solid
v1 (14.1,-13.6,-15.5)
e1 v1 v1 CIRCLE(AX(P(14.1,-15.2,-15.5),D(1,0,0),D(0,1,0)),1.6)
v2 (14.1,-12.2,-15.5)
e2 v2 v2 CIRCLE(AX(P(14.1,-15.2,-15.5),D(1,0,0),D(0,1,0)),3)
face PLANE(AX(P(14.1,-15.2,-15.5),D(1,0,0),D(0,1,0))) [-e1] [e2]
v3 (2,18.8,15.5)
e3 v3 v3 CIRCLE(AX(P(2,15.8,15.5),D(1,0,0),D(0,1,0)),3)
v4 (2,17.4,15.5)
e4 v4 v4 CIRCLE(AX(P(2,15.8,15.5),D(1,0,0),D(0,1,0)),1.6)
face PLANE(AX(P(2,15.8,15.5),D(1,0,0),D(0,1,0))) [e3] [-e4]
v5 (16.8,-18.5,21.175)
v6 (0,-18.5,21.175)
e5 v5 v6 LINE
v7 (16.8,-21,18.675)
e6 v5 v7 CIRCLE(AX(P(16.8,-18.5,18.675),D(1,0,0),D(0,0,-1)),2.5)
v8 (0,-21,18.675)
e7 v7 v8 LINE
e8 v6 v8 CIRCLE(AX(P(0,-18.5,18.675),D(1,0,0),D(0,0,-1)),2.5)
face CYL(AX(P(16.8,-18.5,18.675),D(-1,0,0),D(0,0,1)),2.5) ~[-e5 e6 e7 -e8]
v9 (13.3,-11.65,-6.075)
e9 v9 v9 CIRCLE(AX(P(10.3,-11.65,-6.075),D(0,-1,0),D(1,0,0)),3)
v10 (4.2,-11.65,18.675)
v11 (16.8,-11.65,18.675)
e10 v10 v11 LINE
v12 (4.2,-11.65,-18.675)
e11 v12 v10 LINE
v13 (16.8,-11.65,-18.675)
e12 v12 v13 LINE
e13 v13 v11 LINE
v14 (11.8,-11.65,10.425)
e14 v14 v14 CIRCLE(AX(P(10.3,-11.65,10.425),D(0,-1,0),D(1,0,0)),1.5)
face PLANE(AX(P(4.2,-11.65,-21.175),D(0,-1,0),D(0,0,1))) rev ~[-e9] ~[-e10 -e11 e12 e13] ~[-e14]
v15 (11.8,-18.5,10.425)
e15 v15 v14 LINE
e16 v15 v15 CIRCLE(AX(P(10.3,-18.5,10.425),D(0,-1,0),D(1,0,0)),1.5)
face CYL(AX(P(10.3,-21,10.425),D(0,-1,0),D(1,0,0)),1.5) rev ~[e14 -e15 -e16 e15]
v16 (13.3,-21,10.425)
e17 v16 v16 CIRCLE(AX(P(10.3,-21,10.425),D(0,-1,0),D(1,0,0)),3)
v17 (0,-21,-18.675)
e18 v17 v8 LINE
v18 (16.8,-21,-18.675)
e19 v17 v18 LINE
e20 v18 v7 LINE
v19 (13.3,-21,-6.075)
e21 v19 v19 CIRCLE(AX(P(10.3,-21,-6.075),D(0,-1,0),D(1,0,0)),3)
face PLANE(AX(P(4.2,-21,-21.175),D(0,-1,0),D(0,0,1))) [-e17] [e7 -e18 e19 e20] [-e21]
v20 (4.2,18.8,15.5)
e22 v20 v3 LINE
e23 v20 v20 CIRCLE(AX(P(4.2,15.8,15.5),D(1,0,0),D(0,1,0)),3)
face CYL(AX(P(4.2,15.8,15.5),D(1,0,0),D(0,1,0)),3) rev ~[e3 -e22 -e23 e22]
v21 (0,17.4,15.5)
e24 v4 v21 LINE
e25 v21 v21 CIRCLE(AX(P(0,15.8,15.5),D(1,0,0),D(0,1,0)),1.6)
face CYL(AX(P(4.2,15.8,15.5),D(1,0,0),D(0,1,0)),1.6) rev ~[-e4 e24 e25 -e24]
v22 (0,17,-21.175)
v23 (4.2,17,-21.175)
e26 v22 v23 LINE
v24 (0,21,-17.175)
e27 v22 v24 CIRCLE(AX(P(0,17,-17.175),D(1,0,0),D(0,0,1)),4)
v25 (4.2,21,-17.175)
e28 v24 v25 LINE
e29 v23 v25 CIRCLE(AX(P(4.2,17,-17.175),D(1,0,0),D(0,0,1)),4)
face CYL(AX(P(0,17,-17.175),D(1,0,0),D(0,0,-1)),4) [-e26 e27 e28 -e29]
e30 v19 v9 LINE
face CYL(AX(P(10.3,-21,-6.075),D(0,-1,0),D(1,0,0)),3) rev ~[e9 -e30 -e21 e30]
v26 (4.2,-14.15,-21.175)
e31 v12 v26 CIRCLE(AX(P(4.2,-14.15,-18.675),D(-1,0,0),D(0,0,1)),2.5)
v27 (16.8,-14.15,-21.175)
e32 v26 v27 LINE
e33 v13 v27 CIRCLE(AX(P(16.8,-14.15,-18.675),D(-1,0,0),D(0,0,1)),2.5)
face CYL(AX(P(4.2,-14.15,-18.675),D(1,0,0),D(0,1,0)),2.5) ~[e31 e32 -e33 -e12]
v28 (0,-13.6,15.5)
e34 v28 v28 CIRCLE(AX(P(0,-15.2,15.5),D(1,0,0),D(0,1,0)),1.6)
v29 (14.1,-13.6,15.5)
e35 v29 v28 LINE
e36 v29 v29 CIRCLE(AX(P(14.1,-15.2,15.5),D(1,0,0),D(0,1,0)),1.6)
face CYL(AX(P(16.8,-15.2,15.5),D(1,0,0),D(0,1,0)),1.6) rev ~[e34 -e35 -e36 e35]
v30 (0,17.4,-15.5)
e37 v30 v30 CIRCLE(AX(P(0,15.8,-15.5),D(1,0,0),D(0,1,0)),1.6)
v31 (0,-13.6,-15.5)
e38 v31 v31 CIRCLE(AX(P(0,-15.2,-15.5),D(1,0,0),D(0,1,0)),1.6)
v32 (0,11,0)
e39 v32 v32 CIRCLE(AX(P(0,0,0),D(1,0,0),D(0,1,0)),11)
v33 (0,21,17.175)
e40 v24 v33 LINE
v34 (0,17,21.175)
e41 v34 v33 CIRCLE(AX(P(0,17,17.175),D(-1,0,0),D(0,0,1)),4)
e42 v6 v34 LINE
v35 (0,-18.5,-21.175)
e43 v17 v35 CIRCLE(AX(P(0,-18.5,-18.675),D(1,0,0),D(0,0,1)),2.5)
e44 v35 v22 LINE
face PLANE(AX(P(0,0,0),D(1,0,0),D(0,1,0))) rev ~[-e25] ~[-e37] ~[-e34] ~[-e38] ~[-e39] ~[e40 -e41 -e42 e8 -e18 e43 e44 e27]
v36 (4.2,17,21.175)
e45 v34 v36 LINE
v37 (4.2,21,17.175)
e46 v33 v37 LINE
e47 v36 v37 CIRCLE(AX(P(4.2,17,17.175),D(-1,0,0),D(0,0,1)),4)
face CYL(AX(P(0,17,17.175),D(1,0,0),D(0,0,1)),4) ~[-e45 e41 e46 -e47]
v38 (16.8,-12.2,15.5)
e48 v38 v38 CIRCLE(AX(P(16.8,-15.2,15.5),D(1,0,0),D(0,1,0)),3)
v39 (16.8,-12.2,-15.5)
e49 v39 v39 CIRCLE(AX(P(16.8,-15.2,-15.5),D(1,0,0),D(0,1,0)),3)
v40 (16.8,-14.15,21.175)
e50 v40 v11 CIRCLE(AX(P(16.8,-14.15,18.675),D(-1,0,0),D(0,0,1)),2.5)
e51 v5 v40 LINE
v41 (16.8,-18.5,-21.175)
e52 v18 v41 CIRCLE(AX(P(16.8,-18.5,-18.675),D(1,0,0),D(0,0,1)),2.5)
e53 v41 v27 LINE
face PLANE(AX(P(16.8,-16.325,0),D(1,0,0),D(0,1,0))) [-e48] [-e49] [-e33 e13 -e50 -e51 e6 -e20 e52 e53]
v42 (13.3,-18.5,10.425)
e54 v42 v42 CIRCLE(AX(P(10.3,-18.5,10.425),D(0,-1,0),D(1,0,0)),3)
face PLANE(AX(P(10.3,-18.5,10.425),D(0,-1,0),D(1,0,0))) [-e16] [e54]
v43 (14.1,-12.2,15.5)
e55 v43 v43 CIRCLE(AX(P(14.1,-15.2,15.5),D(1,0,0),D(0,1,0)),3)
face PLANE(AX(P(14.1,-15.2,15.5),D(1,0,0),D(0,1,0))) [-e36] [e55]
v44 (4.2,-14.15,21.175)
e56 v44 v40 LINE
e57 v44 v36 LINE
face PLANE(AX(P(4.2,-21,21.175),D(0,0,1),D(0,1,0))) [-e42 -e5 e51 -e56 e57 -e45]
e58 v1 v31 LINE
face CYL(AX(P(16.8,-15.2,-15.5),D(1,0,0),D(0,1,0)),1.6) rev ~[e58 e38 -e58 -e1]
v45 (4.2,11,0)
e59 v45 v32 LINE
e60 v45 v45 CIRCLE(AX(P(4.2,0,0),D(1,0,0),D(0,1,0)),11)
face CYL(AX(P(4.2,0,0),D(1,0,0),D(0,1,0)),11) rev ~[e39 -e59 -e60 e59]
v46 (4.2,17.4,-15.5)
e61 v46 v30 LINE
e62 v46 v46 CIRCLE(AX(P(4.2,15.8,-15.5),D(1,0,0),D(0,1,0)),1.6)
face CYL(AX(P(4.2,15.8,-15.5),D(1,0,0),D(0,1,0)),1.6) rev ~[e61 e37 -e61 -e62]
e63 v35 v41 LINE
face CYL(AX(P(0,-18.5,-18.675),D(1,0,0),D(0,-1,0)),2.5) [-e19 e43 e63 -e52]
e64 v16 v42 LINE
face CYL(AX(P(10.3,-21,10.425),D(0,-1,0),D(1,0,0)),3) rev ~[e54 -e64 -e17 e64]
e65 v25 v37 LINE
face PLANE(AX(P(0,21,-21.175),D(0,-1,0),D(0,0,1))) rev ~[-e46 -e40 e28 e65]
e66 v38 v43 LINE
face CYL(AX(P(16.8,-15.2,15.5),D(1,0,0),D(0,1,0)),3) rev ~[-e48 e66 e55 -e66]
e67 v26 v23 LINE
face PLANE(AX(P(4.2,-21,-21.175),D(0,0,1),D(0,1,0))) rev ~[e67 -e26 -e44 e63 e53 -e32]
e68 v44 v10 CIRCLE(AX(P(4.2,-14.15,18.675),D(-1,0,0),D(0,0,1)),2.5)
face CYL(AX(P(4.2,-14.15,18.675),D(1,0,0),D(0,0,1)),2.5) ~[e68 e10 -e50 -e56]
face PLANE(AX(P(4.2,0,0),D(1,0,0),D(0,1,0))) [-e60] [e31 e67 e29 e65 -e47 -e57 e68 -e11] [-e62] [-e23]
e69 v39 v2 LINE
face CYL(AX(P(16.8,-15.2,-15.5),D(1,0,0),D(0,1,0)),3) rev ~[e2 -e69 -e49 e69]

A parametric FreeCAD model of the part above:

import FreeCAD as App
import Part
import Sketcher


def edges_at(feature, points):
    """Names of the edges that pass closest to the given points."""
    edges = feature.Shape.Edges
    near = lambda p: min(range(len(edges)), key=lambda i: edges[i].distToShape(Part.Vertex(*p))[0])
    return sorted({f"Edge{near(p) + 1}" for p in points})


def add_polygon(sketch, points):
    """Adds a closed chain of lines whose ends are joined by coincident constraints."""
    first, n = sketch.GeometryCount, len(points)
    for a, b in zip(points, points[1:] + points[:1]):
        sketch.addGeometry(Part.LineSegment(App.Vector(*a, 0), App.Vector(*b, 0)), False)
    for i in range(n):
        sketch.addConstraint(Sketcher.Constraint("Coincident", first + i, 2, first + (i + 1) % n, 1))

doc = App.newDocument("Part")
body = doc.addObject("PartDesign::Body", "Body")

# Sketch on YZ plane
sketch1 = body.newObject("Sketcher::SketchObject", "Sketch")
sketch1.AttachmentSupport = (doc.getObject("YZ_Plane"), [""])
sketch1.MapMode = "FlatFace"
add_polygon(sketch1, [(-21, 21), (-21, -21), (21, -21), (21, 21)])  # lines 0-3
sketch1.addConstraint([
    Sketcher.Constraint("Vertical", 0),
    Sketcher.Constraint("Horizontal", 1),
    Sketcher.Constraint("Vertical", 2),
    Sketcher.Constraint("Horizontal", 3),
    Sketcher.Constraint("Symmetric", 0, 2, 2, 2, -1, 1),
    Sketcher.Constraint("DistanceX", 1, 1, 1, 2, 42.0),
    Sketcher.Constraint("DistanceY", 0, 2, 0, 1, 42.35),
])
pad1 = body.newObject("PartDesign::Pad", "Pad")
pad1.Profile = sketch1
pad1.Length = 4.2

# Sketch on YZ plane
sketch2 = body.newObject("Sketcher::SketchObject", "Sketch001")
sketch2.AttachmentSupport = (doc.getObject("YZ_Plane"), [""])
sketch2.MapMode = "FlatFace"
sketch2.AttachmentOffset = App.Placement(App.Vector(0, 0, 4.2), App.Rotation())
sketch2.addGeometry([
    Part.Circle(App.Vector(0, 0, 0), App.Vector(0, 0, 1), 11),
    Part.Circle(App.Vector(15.8, 15.5, 0), App.Vector(0, 0, 1), 1.6),
    Part.Circle(App.Vector(15.8, -15.5, 0), App.Vector(0, 0, 1), 1.6),
], False)
sketch2.addConstraint([
    Sketcher.Constraint("Coincident", 0, 3, -1, 1),
    Sketcher.Constraint("Equal", 1, 2),
    Sketcher.Constraint("Symmetric", 1, 3, 2, 3, -1),
    Sketcher.Constraint("Diameter", 0, 22.0),
    Sketcher.Constraint("Diameter", 1, 3.2),
    Sketcher.Constraint("DistanceY", 2, 3, 1, 3, 31.0),
    Sketcher.Constraint("DistanceX", -1, 1, 1, 3, 15.8),
])
pocket1 = body.newObject("PartDesign::Pocket", "Pocket")
pocket1.Profile = sketch2
pocket1.Type = "ThroughAll"

# Sketch on YZ plane
sketch3 = body.newObject("Sketcher::SketchObject", "Sketch002")
sketch3.AttachmentSupport = (doc.getObject("YZ_Plane"), [""])
sketch3.MapMode = "FlatFace"
sketch3.AttachmentOffset = App.Placement(App.Vector(0, 0, 4.2), App.Rotation())
add_polygon(sketch3, [(-21, 21), (-21, -21), (-12, -21), (-12, 21)])  # lines 0-3
sketch3.addConstraint([
    Sketcher.Constraint("Vertical", 0),
    Sketcher.Constraint("Horizontal", 1),
    Sketcher.Constraint("Vertical", 2),
    Sketcher.Constraint("Horizontal", 3),
    Sketcher.Constraint("DistanceX", 0, 2, -1, 1, 21.0),
    Sketcher.Constraint("DistanceX", 1, 1, 1, 2, 9.35),
    Sketcher.Constraint("DistanceY", 0, 2, 0, 1, 42.35),
    Sketcher.Constraint("DistanceY", 0, 2, -1, 1, 21.175),
])
pad2 = body.newObject("PartDesign::Pad", "Pad001")
pad2.Profile = sketch3
pad2.Length = 12.6

# Sketch on YZ plane
sketch4 = body.newObject("Sketcher::SketchObject", "Sketch003")
sketch4.AttachmentSupport = (doc.getObject("YZ_Plane"), [""])
sketch4.MapMode = "FlatFace"
sketch4.AttachmentOffset = App.Placement(App.Vector(0, 0, 16.8), App.Rotation())
sketch4.addGeometry([
    Part.Circle(App.Vector(-15.2, 15.5, 0), App.Vector(0, 0, 1), 1.6),
    Part.Circle(App.Vector(-15.2, -15.5, 0), App.Vector(0, 0, 1), 1.6),
], False)
sketch4.addConstraint([
    Sketcher.Constraint("Equal", 0, 1),
    Sketcher.Constraint("Symmetric", 0, 3, 1, 3, -1),
    Sketcher.Constraint("Diameter", 0, 3.2),
    Sketcher.Constraint("DistanceY", 1, 3, 0, 3, 31.0),
    Sketcher.Constraint("DistanceX", 0, 3, -1, 1, 15.2),
])
pocket2 = body.newObject("PartDesign::Pocket", "Pocket001")
pocket2.Profile = sketch4
pocket2.Type = "ThroughAll"

# Sketch on YZ plane
sketch5 = body.newObject("Sketcher::SketchObject", "Sketch004")
sketch5.AttachmentSupport = (doc.getObject("YZ_Plane"), [""])
sketch5.MapMode = "FlatFace"
sketch5.AttachmentOffset = App.Placement(App.Vector(0, 0, 16.8), App.Rotation())
sketch5.addGeometry([
    Part.Circle(App.Vector(-15.2, -15.5, 0), App.Vector(0, 0, 1), 3),
    Part.Circle(App.Vector(-15.2, 15.5, 0), App.Vector(0, 0, 1), 3),
], False)
sketch5.addConstraint([
    Sketcher.Constraint("Equal", 0, 1),
    Sketcher.Constraint("Symmetric", 0, 3, 1, 3, -1),
    Sketcher.Constraint("Diameter", 0, 6.0),
    Sketcher.Constraint("DistanceY", 0, 3, 1, 3, 31.0),
    Sketcher.Constraint("DistanceX", 0, 3, -1, 1, 15.2),
])
pocket3 = body.newObject("PartDesign::Pocket", "Pocket002")
pocket3.Profile = sketch5
pocket3.Length = 2.7

# Sketch on YZ plane
sketch6 = body.newObject("Sketcher::SketchObject", "Sketch005")
sketch6.AttachmentSupport = (doc.getObject("YZ_Plane"), [""])
sketch6.MapMode = "FlatFace"
sketch6.AttachmentOffset = App.Placement(App.Vector(0, 0, 4.2), App.Rotation())
sketch6.addGeometry(Part.Circle(App.Vector(15.8, 15.5, 0), App.Vector(0, 0, 1), 3), False)
sketch6.addConstraint([
    Sketcher.Constraint("Diameter", 0, 6.0),
    Sketcher.Constraint("DistanceX", -1, 1, 0, 3, 15.8),
    Sketcher.Constraint("DistanceY", -1, 1, 0, 3, 15.5),
])
pocket4 = body.newObject("PartDesign::Pocket", "Pocket003")
pocket4.Profile = sketch6
pocket4.Length = 2.2
doc.recompute()

fillet = body.newObject("PartDesign::Fillet", "Fillet")
fillet.Base = (pocket4, edges_at(pocket4, [(2.1, 21, 21.175), (2.1, 21, -21.175)]))
fillet.Radius = 4
doc.recompute()

fillet2 = body.newObject("PartDesign::Fillet", "Fillet001")
fillet2.Base = (fillet, edges_at(fillet, [
    (10.5, -11.65, 21.175),
    (10.5, -11.65, -21.175),
    (8.4, -21, 21.175),
    (8.4, -21, -21.175),
]))
fillet2.Radius = 2.5

# Sketch on XZ plane
sketch7 = body.newObject("Sketcher::SketchObject", "Sketch006")
sketch7.AttachmentSupport = (doc.getObject("XZ_Plane"), [""])
sketch7.MapMode = "FlatFace"
sketch7.AttachmentOffset = App.Placement(App.Vector(0, 0, 21), App.Rotation())
sketch7.addGeometry([
    Part.Circle(App.Vector(10.3, 10.4, 0), App.Vector(0, 0, 1), 1.5),
    Part.Circle(App.Vector(10.3, -6.1, 0), App.Vector(0, 0, 1), 3),
], False)
sketch7.addConstraint([
    Sketcher.Constraint("Vertical", 0, 3, 1, 3),
    Sketcher.Constraint("Diameter", 0, 3.0),
    Sketcher.Constraint("Diameter", 1, 6.0),
    Sketcher.Constraint("DistanceX", -1, 1, 0, 3, 10.3),
    Sketcher.Constraint("DistanceY", 1, 3, 0, 3, 16.5),
    Sketcher.Constraint("DistanceY", -1, 1, 0, 3, 10.425),
])
pocket5 = body.newObject("PartDesign::Pocket", "Pocket004")
pocket5.Profile = sketch7
pocket5.Type = "ThroughAll"

# Sketch on XZ plane
sketch8 = body.newObject("Sketcher::SketchObject", "Sketch007")
sketch8.AttachmentSupport = (doc.getObject("XZ_Plane"), [""])
sketch8.MapMode = "FlatFace"
sketch8.AttachmentOffset = App.Placement(App.Vector(0, 0, 21), App.Rotation())
sketch8.addGeometry(Part.Circle(App.Vector(10.3, 10.4, 0), App.Vector(0, 0, 1), 3), False)
sketch8.addConstraint([
    Sketcher.Constraint("Diameter", 0, 6.0),
    Sketcher.Constraint("DistanceX", -1, 1, 0, 3, 10.3),
    Sketcher.Constraint("DistanceY", -1, 1, 0, 3, 10.425),
])
pocket6 = body.newObject("PartDesign::Pocket", "Pocket005")
pocket6.Profile = sketch8
pocket6.Length = 2.5

doc.recompute()
